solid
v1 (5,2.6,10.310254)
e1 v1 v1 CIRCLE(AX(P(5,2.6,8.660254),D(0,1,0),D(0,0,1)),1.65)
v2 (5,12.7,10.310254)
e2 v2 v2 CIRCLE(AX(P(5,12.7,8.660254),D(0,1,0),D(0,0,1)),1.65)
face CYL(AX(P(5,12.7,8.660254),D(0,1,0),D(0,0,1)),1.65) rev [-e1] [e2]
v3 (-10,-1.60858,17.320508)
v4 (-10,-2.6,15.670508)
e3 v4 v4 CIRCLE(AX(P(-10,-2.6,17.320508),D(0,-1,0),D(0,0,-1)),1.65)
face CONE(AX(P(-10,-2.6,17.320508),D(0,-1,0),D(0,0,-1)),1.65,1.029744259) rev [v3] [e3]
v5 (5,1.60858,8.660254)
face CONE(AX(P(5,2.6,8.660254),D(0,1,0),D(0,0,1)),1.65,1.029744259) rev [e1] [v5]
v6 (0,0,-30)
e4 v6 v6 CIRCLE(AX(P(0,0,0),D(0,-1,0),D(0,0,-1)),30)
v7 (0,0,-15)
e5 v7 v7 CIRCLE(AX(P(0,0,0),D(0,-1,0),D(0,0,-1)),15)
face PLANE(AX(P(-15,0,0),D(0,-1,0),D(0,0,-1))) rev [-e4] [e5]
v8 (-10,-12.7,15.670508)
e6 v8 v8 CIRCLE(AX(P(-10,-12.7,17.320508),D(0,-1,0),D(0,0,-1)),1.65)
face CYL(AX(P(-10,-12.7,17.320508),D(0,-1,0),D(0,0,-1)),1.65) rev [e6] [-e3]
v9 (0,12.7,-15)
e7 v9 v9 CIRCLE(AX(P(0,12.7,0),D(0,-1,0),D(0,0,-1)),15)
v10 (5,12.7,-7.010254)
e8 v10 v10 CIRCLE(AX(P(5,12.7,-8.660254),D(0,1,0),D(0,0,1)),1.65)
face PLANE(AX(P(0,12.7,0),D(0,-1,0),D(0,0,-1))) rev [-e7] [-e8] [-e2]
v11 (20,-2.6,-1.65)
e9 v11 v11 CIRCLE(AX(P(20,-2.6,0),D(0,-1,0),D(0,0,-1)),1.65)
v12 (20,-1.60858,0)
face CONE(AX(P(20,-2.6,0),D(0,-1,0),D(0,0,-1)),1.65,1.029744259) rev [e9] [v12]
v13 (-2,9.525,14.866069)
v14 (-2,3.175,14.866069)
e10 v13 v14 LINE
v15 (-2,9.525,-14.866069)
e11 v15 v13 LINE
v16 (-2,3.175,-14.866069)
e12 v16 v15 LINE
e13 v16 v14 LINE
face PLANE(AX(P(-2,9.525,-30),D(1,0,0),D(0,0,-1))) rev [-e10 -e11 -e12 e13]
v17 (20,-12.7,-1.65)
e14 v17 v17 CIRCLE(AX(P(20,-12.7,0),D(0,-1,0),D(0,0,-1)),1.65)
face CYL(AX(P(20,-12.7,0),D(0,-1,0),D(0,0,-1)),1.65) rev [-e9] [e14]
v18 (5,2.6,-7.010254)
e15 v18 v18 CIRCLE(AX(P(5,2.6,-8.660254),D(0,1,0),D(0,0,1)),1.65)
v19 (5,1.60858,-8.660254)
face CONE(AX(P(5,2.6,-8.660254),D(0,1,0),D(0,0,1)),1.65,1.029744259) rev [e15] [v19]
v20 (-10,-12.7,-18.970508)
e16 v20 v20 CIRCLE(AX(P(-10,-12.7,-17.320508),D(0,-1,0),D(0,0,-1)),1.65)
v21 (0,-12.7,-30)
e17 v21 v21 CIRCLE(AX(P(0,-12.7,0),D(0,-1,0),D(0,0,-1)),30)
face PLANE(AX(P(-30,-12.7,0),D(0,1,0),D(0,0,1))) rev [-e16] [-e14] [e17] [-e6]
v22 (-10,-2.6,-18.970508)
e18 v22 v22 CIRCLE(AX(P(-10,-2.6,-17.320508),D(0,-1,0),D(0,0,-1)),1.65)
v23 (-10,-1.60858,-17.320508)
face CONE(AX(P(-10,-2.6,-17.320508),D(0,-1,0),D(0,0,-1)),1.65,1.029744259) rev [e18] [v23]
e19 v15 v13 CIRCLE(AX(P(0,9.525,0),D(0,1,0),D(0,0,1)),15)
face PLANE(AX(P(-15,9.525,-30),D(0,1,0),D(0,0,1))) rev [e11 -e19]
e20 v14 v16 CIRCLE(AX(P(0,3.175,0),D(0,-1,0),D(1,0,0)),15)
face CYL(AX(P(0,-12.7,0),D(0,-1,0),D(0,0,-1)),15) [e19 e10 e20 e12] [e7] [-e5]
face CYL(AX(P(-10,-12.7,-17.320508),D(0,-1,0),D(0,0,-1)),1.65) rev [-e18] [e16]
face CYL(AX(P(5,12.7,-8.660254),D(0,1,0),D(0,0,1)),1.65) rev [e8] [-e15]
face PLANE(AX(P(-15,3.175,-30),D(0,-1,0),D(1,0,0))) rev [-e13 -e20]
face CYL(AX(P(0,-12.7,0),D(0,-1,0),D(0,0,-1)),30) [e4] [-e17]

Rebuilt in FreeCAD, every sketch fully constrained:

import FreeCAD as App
import Part
import Sketcher

V = App.Vector
Q = App.Units.Quantity


def add_polygon(sketch, points):
    """Adds a closed chain of lines whose ends are joined by coincident constraints."""
    first, n = sketch.GeometryCount, len(points)
    for a, b in zip(points, points[1:] + points[:1]):
        sketch.addGeometry(Part.LineSegment(App.Vector(*a, 0), App.Vector(*b, 0)), False)
    for i in range(n):
        sketch.addConstraint(Sketcher.Constraint("Coincident", first + i, 2, first + (i + 1) % n, 1))

doc = App.newDocument("Part")
body = doc.addObject("PartDesign::Body", "Body")

sketch1 = body.newObject("Sketcher::SketchObject", "Sketch")
sketch1.AttachmentSupport = (doc.getObject("XY_Plane"), [""])
sketch1.MapMode = "FlatFace"
add_polygon(sketch1, [(0, 12.7), (-15, 12.7), (-15, 0), (-30, 0), (-30, -12.7), (0, -12.7)])
sketch1.addConstraint([
    Sketcher.Constraint("Horizontal", 0),
    Sketcher.Constraint("Vertical", 1),
    Sketcher.Constraint("Horizontal", 2),
    Sketcher.Constraint("Vertical", 3),
    Sketcher.Constraint("Horizontal", 4),
    Sketcher.Constraint("Vertical", 5),
    Sketcher.Constraint("Symmetric", 4, 2, 5, 2, -1, 1),
    Sketcher.Constraint("PointOnObject", 1, 2, -1),
    Sketcher.Constraint("Equal", 0, 2),
    Sketcher.Constraint("DistanceX", 0, 2, 0, 1, Q("15 mm")),
    Sketcher.Constraint("DistanceY", 1, 2, 1, 1, Q("12.7 mm")),
])
revolution = body.newObject("PartDesign::Revolution", "Revolution")
revolution.Profile = sketch1
revolution.ReferenceAxis = (sketch1, ["V_Axis"])
revolution.Angle = 360

sketch2 = body.newObject("Sketcher::SketchObject", "Sketch001")
sketch2.AttachmentSupport = (doc.getObject("XY_Plane"), [""])
sketch2.MapMode = "FlatFace"
add_polygon(sketch2, [(-15, 9.525), (-15, 3.175), (-2, 3.175), (-2, 9.525)])
sketch2.addConstraint([
    Sketcher.Constraint("Vertical", 0),
    Sketcher.Constraint("Horizontal", 1),
    Sketcher.Constraint("Vertical", 2),
    Sketcher.Constraint("Horizontal", 3),
    Sketcher.Constraint("DistanceX", 1, 1, 1, 2, Q("13 mm")),
    Sketcher.Constraint("DistanceX", 0, 2, -1, 1, Q("15 mm")),
    Sketcher.Constraint("DistanceY", 0, 2, 0, 1, Q("6.35 mm")),
    Sketcher.Constraint("DistanceY", -1, 1, 0, 2, Q("3.175 mm")),
])
pocket1 = body.newObject("PartDesign::Pocket", "Pocket")
pocket1.Profile = sketch2
pocket1.Type = "ThroughAll"
pocket1.Midplane = True

sketch3 = body.newObject("Sketcher::SketchObject", "Sketch002")
sketch3.AttachmentSupport = (doc.getObject("XZ_Plane"), [""])
sketch3.MapMode = "FlatFace"
sketch3.AttachmentOffset = App.Placement(V(0, 0, -12.7), App.Rotation())
sketch3.addGeometry([
    Part.Circle(V(5, 8.660254, 0), V(0, 0, 1), 1.65),
    Part.Circle(V(5, -8.660254, 0), V(0, 0, 1), 1.65),
], False)
sketch3.addConstraint([
    Sketcher.Constraint("Equal", 0, 1),
    Sketcher.Constraint("Symmetric", 0, 3, 1, 3, -1),
    Sketcher.Constraint("Diameter", 0, Q("3.3 mm")),
    Sketcher.Constraint("DistanceX", -1, 1, 0, 3, Q("5 mm")),
    Sketcher.Constraint("DistanceY", 1, 3, 0, 3, Q("17.320508 mm")),
])
doc.recompute()
hole = body.newObject("PartDesign::Hole", "Hole")
hole.Profile = sketch3
hole.ThreadType = "None"
hole.Diameter = 3.3
hole.DepthType = "Dimension"
hole.Depth = 10.1
hole.DrillPoint = "Angled"
hole.DrillPointAngle = 118
hole.Reversed = True

sketch4 = body.newObject("Sketcher::SketchObject", "Sketch003")
sketch4.AttachmentSupport = (doc.getObject("XZ_Plane"), [""])
sketch4.MapMode = "FlatFace"
sketch4.AttachmentOffset = App.Placement(V(0, 0, 12.7), App.Rotation())
sketch4.addGeometry([
    Part.Circle(V(20, 0, 0), V(0, 0, 1), 1.65),
    Part.Circle(V(-10, 17.320508, 0), V(0, 0, 1), 1.65),
    Part.Circle(V(-10, -17.320508, 0), V(0, 0, 1), 1.65),
], False)
sketch4.addConstraint([
    Sketcher.Constraint("Equal", 0, 1),
    Sketcher.Constraint("Equal", 1, 2),
    Sketcher.Constraint("Symmetric", 1, 3, 2, 3, -1),
    Sketcher.Constraint("PointOnObject", 0, 3, -1),
    Sketcher.Constraint("Diameter", 0, Q("3.3 mm")),
    Sketcher.Constraint("DistanceX", -1, 1, 0, 3, Q("20 mm")),
    Sketcher.Constraint("DistanceX", 1, 3, -1, 1, Q("10 mm")),
    Sketcher.Constraint("DistanceY", -1, 1, 1, 3, Q("17.320508 mm")),
])
doc.recompute()
hole2 = body.newObject("PartDesign::Hole", "Hole001")
hole2.Profile = sketch4
hole2.ThreadType = "None"
hole2.Diameter = 3.3
hole2.DepthType = "Dimension"
hole2.Depth = 10.1
hole2.DrillPoint = "Angled"
hole2.DrillPointAngle = 118

doc.recompute()
